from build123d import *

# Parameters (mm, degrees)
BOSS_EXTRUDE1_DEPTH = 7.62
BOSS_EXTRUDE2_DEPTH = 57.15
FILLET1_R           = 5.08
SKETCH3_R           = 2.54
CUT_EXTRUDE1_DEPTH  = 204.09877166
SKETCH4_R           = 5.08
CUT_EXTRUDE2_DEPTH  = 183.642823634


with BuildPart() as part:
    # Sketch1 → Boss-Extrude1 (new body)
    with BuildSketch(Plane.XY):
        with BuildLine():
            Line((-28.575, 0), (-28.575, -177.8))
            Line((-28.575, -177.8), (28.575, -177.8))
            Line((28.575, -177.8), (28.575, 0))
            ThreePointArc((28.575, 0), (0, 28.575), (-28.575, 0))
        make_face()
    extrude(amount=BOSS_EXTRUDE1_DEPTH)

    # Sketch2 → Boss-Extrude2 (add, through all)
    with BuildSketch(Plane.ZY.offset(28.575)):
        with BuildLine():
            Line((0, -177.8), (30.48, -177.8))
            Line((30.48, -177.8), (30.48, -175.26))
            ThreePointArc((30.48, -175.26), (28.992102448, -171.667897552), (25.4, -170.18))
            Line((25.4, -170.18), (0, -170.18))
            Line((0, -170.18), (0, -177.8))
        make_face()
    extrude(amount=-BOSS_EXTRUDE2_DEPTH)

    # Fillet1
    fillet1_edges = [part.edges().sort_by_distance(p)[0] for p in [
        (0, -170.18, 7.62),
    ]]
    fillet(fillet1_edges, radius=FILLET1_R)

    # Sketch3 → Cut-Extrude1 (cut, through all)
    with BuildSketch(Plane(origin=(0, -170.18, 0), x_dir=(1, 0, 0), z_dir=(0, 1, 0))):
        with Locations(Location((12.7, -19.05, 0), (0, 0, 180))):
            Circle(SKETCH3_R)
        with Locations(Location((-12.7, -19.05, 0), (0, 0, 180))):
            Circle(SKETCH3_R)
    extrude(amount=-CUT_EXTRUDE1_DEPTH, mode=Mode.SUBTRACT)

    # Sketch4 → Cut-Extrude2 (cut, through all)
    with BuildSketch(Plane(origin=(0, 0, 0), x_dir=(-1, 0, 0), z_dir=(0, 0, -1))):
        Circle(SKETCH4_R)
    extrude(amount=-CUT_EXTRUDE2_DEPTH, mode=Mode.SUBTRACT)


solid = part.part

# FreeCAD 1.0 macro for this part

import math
import FreeCAD as App
import Part
import Sketcher

V = App.Vector
Q = App.Units.Quantity


def edges_at(feature, points):
    """Names of the edges that pass closest to the given points."""
    edges = feature.Shape.Edges
    near = lambda p: min(range(len(edges)), key=lambda i: edges[i].distToShape(Part.Vertex(*p))[0])
    return sorted({f"Edge{near(p) + 1}" for p in points})

doc = App.newDocument("Part")
body = doc.addObject("PartDesign::Body", "Body")

# Sketch on XY plane
sketch1 = body.newObject("Sketcher::SketchObject", "Sketch")
sketch1.AttachmentSupport = (doc.getObject("XY_Plane"), [""])
sketch1.MapMode = "FlatFace"
sketch1.addGeometry([
    Part.LineSegment(V(-29, 0, 0), V(-29, -178, 0)),
    Part.LineSegment(V(-29, -178, 0), V(29, -178, 0)),
    Part.LineSegment(V(29, -178, 0), V(29, 0, 0)),
    Part.ArcOfCircle(Part.Circle(V(0, 0, 0), V(0, 0, 1), 29), math.radians(0), math.radians(180)),
], False)
sketch1.addConstraint([
    Sketcher.Constraint("Coincident", 0, 2, 1, 1),
    Sketcher.Constraint("Coincident", 1, 2, 2, 1),
    Sketcher.Constraint("Tangent", 2, 2, 3, 1),
    Sketcher.Constraint("Tangent", 3, 2, 0, 1),
    Sketcher.Constraint("Vertical", 0),
    Sketcher.Constraint("Horizontal", 1),
    Sketcher.Constraint("Vertical", 2),
    Sketcher.Constraint("Coincident", 3, 3, -1, 1),
    Sketcher.Constraint("DistanceY", 0, 2, 0, 1, Q("7 in")),
    Sketcher.Constraint("Radius", 3, Q("1.125 in")),
])
pad1 = body.newObject("PartDesign::Pad", "Pad")
pad1.Profile = sketch1
pad1.Length = Q("0.3 in")

# Sketch on YZ plane
sketch2 = body.newObject("Sketcher::SketchObject", "Sketch001")
sketch2.AttachmentSupport = (doc.getObject("YZ_Plane"), [""])
sketch2.MapMode = "FlatFace"
sketch2.AttachmentOffset = App.Placement(V(0, 0, -1.125 * 25.4), App.Rotation())
sketch2.addGeometry([
    Part.LineSegment(V(-177.8, 0, 0), V(-177.8, 30.5, 0)),  # 0
    Part.LineSegment(V(-177.8, 30.5, 0), V(-175.3, 30.5, 0)),  # 1
    Part.ArcOfCircle(Part.Circle(V(-175.3, 25.4, 0), V(0, 0, 1), 5.1), math.radians(0), math.radians(90)),  # 2
    Part.LineSegment(V(-170.2, 25.4, 0), V(-170.2, 0, 0)),  # 3
    Part.LineSegment(V(-170.2, 0, 0), V(-177.8, 0, 0)),  # 4
], False)
sketch2.addConstraint([
    Sketcher.Constraint("Coincident", 0, 2, 1, 1),
    Sketcher.Constraint("Tangent", 1, 2, 2, 2),
    Sketcher.Constraint("Tangent", 2, 1, 3, 1),
    Sketcher.Constraint("Coincident", 3, 2, 4, 1),
    Sketcher.Constraint("Coincident", 4, 2, 0, 1),
    Sketcher.Constraint("Vertical", 0),
    Sketcher.Constraint("Horizontal", 1),
    Sketcher.Constraint("Vertical", 3),
    Sketcher.Constraint("Horizontal", 4),
    Sketcher.Constraint("PointOnObject", 3, 2, -1),
    Sketcher.Constraint("Radius", 2, Q("0.2 in")),
    Sketcher.Constraint("DistanceY", 3, 2, 3, 1, Q("1 in")),
    Sketcher.Constraint("DistanceX", 1, 1, 1, 2, Q("0.1 in")),
    Sketcher.Constraint("DistanceX", 0, 2, -1, 1, Q("7 in")),
])
pad2 = body.newObject("PartDesign::Pad", "Pad001")
pad2.Profile = sketch2
pad2.Length = Q("2.25 in")
doc.recompute()

fillet = body.newObject("PartDesign::Fillet", "Fillet")
fillet.Base = (pad2, edges_at(pad2, [(0, -170.18, 7.62)]))
fillet.Radius = Q("0.2 in")

# Sketch on XZ plane
sketch3 = body.newObject("Sketcher::SketchObject", "Sketch002")
sketch3.AttachmentSupport = (doc.getObject("XZ_Plane"), [""])
sketch3.MapMode = "FlatFace"
sketch3.AttachmentOffset = App.Placement(V(0, 0, 6.7 * 25.4), App.Rotation())
sketch3.addGeometry([
    Part.Circle(V(12.7, 19.1, 0), V(0, 0, 1), 2.5),
    Part.Circle(V(-12.7, 19.1, 0), V(0, 0, 1), 2.5),
], False)
sketch3.addConstraint([
    Sketcher.Constraint("Equal", 0, 1),
    Sketcher.Constraint("Symmetric", 0, 3, 1, 3, -2),
    Sketcher.Constraint("Diameter", 0, Q("0.2 in")),
    Sketcher.Constraint("DistanceX", 1, 3, 0, 3, Q("1 in")),
    Sketcher.Constraint("DistanceY", -1, 1, 0, 3, Q("0.75 in")),
])
pocket1 = body.newObject("PartDesign::Pocket", "Pocket")
pocket1.Profile = sketch3
pocket1.Type = "ThroughAll"
pocket1.Reversed = True

# Sketch on XY plane
sketch4 = body.newObject("Sketcher::SketchObject", "Sketch003")
sketch4.AttachmentSupport = (doc.getObject("XY_Plane"), [""])
sketch4.MapMode = "FlatFace"
sketch4.addGeometry(Part.Circle(V(0, 0, 0), V(0, 0, 1), 5), False)
sketch4.addConstraint([
    Sketcher.Constraint("Coincident", 0, 3, -1, 1),
    Sketcher.Constraint("Diameter", 0, Q("0.4 in")),
])
pocket2 = body.newObject("PartDesign::Pocket", "Pocket001")
pocket2.Profile = sketch4
pocket2.Type = "ThroughAll"
pocket2.Reversed = True

doc.recompute()
